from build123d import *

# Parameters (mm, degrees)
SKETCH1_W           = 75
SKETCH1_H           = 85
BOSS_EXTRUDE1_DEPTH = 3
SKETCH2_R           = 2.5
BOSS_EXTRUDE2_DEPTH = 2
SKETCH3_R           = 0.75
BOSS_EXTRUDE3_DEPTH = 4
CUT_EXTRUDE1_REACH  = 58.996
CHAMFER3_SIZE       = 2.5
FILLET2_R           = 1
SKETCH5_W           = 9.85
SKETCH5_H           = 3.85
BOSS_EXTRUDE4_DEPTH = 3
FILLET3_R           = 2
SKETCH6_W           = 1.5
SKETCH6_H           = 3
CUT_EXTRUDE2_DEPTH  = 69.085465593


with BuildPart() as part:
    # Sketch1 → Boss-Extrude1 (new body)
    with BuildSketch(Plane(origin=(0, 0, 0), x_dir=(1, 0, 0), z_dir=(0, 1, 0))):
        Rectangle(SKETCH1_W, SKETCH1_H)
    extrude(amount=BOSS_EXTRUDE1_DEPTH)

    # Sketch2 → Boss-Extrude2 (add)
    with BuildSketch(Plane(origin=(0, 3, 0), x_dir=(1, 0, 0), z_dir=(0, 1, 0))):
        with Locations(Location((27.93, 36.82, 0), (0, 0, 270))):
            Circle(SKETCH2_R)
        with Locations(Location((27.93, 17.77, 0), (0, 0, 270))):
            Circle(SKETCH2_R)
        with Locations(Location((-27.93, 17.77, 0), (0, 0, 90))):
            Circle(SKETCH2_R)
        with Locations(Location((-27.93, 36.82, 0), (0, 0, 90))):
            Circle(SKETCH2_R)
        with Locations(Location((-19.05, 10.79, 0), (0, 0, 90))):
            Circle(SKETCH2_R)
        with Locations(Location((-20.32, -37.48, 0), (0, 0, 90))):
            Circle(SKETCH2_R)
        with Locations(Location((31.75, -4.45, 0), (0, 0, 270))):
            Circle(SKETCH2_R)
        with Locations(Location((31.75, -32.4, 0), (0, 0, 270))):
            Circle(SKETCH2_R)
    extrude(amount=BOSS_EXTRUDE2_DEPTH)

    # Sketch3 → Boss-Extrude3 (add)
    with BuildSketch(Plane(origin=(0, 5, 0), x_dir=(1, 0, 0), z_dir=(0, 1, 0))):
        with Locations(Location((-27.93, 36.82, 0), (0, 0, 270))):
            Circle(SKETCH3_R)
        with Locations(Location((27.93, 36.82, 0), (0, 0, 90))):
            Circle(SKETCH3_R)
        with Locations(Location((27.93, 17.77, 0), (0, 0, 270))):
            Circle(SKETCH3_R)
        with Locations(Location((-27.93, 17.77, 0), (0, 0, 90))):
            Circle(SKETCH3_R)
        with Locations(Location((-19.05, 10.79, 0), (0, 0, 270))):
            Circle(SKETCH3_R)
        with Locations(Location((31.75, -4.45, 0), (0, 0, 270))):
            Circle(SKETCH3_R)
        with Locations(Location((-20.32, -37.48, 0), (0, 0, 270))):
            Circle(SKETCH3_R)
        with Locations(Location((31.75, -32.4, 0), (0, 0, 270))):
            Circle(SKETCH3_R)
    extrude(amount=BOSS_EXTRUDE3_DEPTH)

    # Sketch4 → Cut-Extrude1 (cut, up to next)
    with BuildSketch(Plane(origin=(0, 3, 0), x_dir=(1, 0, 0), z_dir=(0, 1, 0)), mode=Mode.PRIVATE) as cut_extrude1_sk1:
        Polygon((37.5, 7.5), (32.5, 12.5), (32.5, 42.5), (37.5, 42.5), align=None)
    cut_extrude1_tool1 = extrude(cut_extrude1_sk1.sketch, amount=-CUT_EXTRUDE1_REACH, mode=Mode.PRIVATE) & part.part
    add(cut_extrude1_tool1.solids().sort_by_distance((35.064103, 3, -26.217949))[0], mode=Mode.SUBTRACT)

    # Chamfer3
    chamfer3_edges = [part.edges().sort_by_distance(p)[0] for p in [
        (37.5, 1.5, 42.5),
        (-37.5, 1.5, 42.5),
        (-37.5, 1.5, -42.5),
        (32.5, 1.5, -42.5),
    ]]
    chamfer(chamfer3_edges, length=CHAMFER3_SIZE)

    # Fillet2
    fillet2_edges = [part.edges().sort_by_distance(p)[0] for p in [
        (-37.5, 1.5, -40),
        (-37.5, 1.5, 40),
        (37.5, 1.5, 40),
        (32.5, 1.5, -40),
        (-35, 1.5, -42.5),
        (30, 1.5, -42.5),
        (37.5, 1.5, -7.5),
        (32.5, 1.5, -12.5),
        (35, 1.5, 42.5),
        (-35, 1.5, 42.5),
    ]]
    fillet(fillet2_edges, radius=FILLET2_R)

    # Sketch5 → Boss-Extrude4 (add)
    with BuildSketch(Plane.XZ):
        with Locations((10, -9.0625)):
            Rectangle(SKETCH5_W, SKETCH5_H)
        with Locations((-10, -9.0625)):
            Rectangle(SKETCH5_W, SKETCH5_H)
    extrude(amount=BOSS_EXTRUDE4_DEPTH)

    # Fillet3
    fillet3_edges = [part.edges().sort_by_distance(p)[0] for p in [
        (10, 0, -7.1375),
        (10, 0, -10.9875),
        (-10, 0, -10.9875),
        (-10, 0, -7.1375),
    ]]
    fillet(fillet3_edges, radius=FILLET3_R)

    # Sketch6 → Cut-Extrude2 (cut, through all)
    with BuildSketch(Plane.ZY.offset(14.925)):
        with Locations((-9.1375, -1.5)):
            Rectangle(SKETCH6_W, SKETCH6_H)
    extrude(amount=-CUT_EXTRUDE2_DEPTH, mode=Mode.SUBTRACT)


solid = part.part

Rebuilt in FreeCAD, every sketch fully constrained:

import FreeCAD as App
import Part
import Sketcher
from FreeCAD import Vector
Q = App.Units.Quantity


def edges_at(feature, points):
    """Names of the edges that pass closest to the given points."""
    edges = feature.Shape.Edges
    near = lambda p: min(range(len(edges)), key=lambda i: edges[i].distToShape(Part.Vertex(*p))[0])
    return sorted({f"Edge{near(p) + 1}" for p in points})

doc = App.newDocument("Part")
body = doc.addObject("PartDesign::Body", "Body")

# Sketch on XZ plane
sketch1 = body.newObject("Sketcher::SketchObject", "Sketch")
sketch1.AttachmentSupport = (doc.getObject("XZ_Plane"), [""])
sketch1.MapMode = "FlatFace"
sketch1.addGeometry([
    Part.LineSegment(Vector(-38, -42, 0), Vector(-38, 42, 0)),
    Part.LineSegment(Vector(-38, 42, 0), Vector(38, 42, 0)),
    Part.LineSegment(Vector(38, 42, 0), Vector(38, -42, 0)),
    Part.LineSegment(Vector(38, -42, 0), Vector(-38, -42, 0)),
], False)
sketch1.addConstraint([
    Sketcher.Constraint("Coincident", 0, 2, 1, 1),
    Sketcher.Constraint("Coincident", 1, 2, 2, 1),
    Sketcher.Constraint("Coincident", 2, 2, 3, 1),
    Sketcher.Constraint("Coincident", 3, 2, 0, 1),
    Sketcher.Constraint("Vertical", 0),
    Sketcher.Constraint("Horizontal", 1),
    Sketcher.Constraint("Vertical", 2),
    Sketcher.Constraint("Horizontal", 3),
    Sketcher.Constraint("Symmetric", 0, 2, 2, 2, -1, 1),
    Sketcher.Constraint("DistanceX", 1, 1, 1, 2, Q("75 mm")),
    Sketcher.Constraint("DistanceY", 0, 1, 0, 2, Q("85 mm")),
])
pad1 = body.newObject("PartDesign::Pad", "Pad")
pad1.Profile = sketch1
pad1.Length = 3
pad1.Reversed = True

# Sketch on XZ plane
sketch2 = body.newObject("Sketcher::SketchObject", "Sketch001")
sketch2.AttachmentSupport = (doc.getObject("XZ_Plane"), [""])
sketch2.MapMode = "FlatFace"
sketch2.AttachmentOffset = App.Placement(Vector(0, 0, -3), App.Rotation())
sketch2.addGeometry([
    Part.Circle(Vector(27.9, -36.8, 0), Vector(0, 0, 1), 2.5),  # 0
    Part.Circle(Vector(27.9, -17.8, 0), Vector(0, 0, 1), 2.5),  # 1
    Part.Circle(Vector(-27.9, -17.8, 0), Vector(0, 0, 1), 2.5),  # 2
    Part.Circle(Vector(-27.9, -36.8, 0), Vector(0, 0, 1), 2.5),  # 3
    Part.Circle(Vector(-19.1, -10.8, 0), Vector(0, 0, 1), 2.5),  # 4
    Part.Circle(Vector(-20.3, 37.5, 0), Vector(0, 0, 1), 2.5),  # 5
    Part.Circle(Vector(31.8, 4.5, 0), Vector(0, 0, 1), 2.5),  # 6
    Part.Circle(Vector(31.8, 32.4, 0), Vector(0, 0, 1), 2.5),  # 7
], False)
sketch2.addConstraint([
    Sketcher.Constraint("Equal", 0, 1),
    Sketcher.Constraint("Equal", 1, 2),
    Sketcher.Constraint("Equal", 2, 3),
    Sketcher.Constraint("Equal", 3, 4),
    Sketcher.Constraint("Equal", 4, 5),
    Sketcher.Constraint("Equal", 5, 6),
    Sketcher.Constraint("Equal", 6, 7),
    Sketcher.Constraint("Symmetric", 1, 3, 2, 3, -2),
    Sketcher.Constraint("Symmetric", 0, 3, 3, 3, -2),
    Sketcher.Constraint("Vertical", 0, 3, 1, 3),
    Sketcher.Constraint("Vertical", 6, 3, 7, 3),
    Sketcher.Constraint("Diameter", 0, Q("5 mm")),
    Sketcher.Constraint("DistanceY", -1, 1, 7, 3, Q("32.4 mm")),
    Sketcher.Constraint("DistanceY", 3, 3, 5, 3, Q("74.3 mm")),
    Sketcher.Constraint("DistanceX", 4, 3, 6, 3, Q("50.8 mm")),
    Sketcher.Constraint("DistanceX", -1, 1, 0, 3, Q("27.93 mm")),
    Sketcher.Constraint("DistanceY", 0, 3, -1, 1, Q("36.82 mm")),
    Sketcher.Constraint("DistanceY", 1, 3, -1, 1, Q("17.77 mm")),
    Sketcher.Constraint("DistanceX", 4, 3, -1, 1, Q("19.05 mm")),
    Sketcher.Constraint("DistanceY", 4, 3, -1, 1, Q("10.79 mm")),
    Sketcher.Constraint("DistanceX", 5, 3, -1, 1, Q("20.32 mm")),
    Sketcher.Constraint("DistanceY", -1, 1, 6, 3, Q("4.45 mm")),
])
pad2 = body.newObject("PartDesign::Pad", "Pad001")
pad2.Profile = sketch2
pad2.Length = 2
pad2.Reversed = True

# Sketch on XZ plane
sketch3 = body.newObject("Sketcher::SketchObject", "Sketch002")
sketch3.AttachmentSupport = (doc.getObject("XZ_Plane"), [""])
sketch3.MapMode = "FlatFace"
sketch3.AttachmentOffset = App.Placement(Vector(0, 0, -5), App.Rotation())
sketch3.addGeometry([
    Part.Circle(Vector(-27.9, -36.8, 0), Vector(0, 0, 1), 0.8),  # 0
    Part.Circle(Vector(27.9, -36.8, 0), Vector(0, 0, 1), 0.8),  # 1
    Part.Circle(Vector(27.9, -17.8, 0), Vector(0, 0, 1), 0.8),  # 2
    Part.Circle(Vector(-27.9, -17.8, 0), Vector(0, 0, 1), 0.8),  # 3
    Part.Circle(Vector(-19.1, -10.8, 0), Vector(0, 0, 1), 0.8),  # 4
    Part.Circle(Vector(31.8, 4.5, 0), Vector(0, 0, 1), 0.8),  # 5
    Part.Circle(Vector(-20.3, 37.5, 0), Vector(0, 0, 1), 0.8),  # 6
    Part.Circle(Vector(31.8, 32.4, 0), Vector(0, 0, 1), 0.8),  # 7
], False)
sketch3.addConstraint([
    Sketcher.Constraint("Equal", 0, 1),
    Sketcher.Constraint("Equal", 1, 2),
    Sketcher.Constraint("Equal", 2, 3),
    Sketcher.Constraint("Equal", 3, 4),
    Sketcher.Constraint("Equal", 4, 5),
    Sketcher.Constraint("Equal", 5, 6),
    Sketcher.Constraint("Equal", 6, 7),
    Sketcher.Constraint("Symmetric", 0, 3, 1, 3, -2),
    Sketcher.Constraint("Symmetric", 2, 3, 3, 3, -2),
    Sketcher.Constraint("Vertical", 1, 3, 2, 3),
    Sketcher.Constraint("Vertical", 5, 3, 7, 3),
    Sketcher.Constraint("Diameter", 0, Q("1.5 mm")),
    Sketcher.Constraint("DistanceY", -1, 1, 7, 3, Q("32.4 mm")),
    Sketcher.Constraint("DistanceX", 4, 3, 5, 3, Q("50.8 mm")),
    Sketcher.Constraint("DistanceY", 0, 3, 6, 3, Q("74.3 mm")),
    Sketcher.Constraint("DistanceX", 0, 3, -1, 1, Q("27.93 mm")),
    Sketcher.Constraint("DistanceY", 0, 3, -1, 1, Q("36.82 mm")),
    Sketcher.Constraint("DistanceY", 2, 3, -1, 1, Q("17.77 mm")),
    Sketcher.Constraint("DistanceX", 4, 3, -1, 1, Q("19.05 mm")),
    Sketcher.Constraint("DistanceY", 4, 3, -1, 1, Q("10.79 mm")),
    Sketcher.Constraint("DistanceY", -1, 1, 5, 3, Q("4.45 mm")),
    Sketcher.Constraint("DistanceX", 6, 3, -1, 1, Q("20.32 mm")),
])
pad3 = body.newObject("PartDesign::Pad", "Pad002")
pad3.Profile = sketch3
pad3.Length = 4
pad3.Reversed = True

# Sketch on XZ plane
sketch4 = body.newObject("Sketcher::SketchObject", "Sketch003")
sketch4.AttachmentSupport = (doc.getObject("XZ_Plane"), [""])
sketch4.MapMode = "FlatFace"
sketch4.AttachmentOffset = App.Placement(Vector(0, 0, -3), App.Rotation())
sketch4.addGeometry([
    Part.LineSegment(Vector(32, -12, 0), Vector(38, -8, 0)),
    Part.LineSegment(Vector(38, -8, 0), Vector(38, -42, 0)),
    Part.LineSegment(Vector(38, -42, 0), Vector(32, -42, 0)),
    Part.LineSegment(Vector(32, -42, 0), Vector(32, -12, 0)),
], False)
sketch4.addConstraint([
    Sketcher.Constraint("Coincident", 0, 2, 1, 1),
    Sketcher.Constraint("Coincident", 1, 2, 2, 1),
    Sketcher.Constraint("Coincident", 2, 2, 3, 1),
    Sketcher.Constraint("Coincident", 3, 2, 0, 1),
    Sketcher.Constraint("Vertical", 1),
    Sketcher.Constraint("Horizontal", 2),
    Sketcher.Constraint("Vertical", 3),
    Sketcher.Constraint("DistanceX", 2, 2, 2, 1, Q("5 mm")),
    Sketcher.Constraint("DistanceY", 1, 2, 1, 1, Q("35 mm")),
    Sketcher.Constraint("DistanceY", 3, 1, 3, 2, Q("30 mm")),
    Sketcher.Constraint("DistanceX", -1, 1, 0, 2, Q("37.5 mm")),
    Sketcher.Constraint("DistanceY", 0, 2, -1, 1, Q("7.5 mm")),
])
pocket1 = body.newObject("PartDesign::Pocket", "Pocket")
pocket1.Profile = sketch4
pocket1.Type = "UpToFirst"
pocket1.Reversed = True
doc.recompute()

chamfer = body.newObject("PartDesign::Chamfer", "Chamfer")
chamfer.Base = (pocket1, edges_at(pocket1, [
    (37.5, 1.5, 42.5),
    (-37.5, 1.5, 42.5),
    (-37.5, 1.5, -42.5),
    (32.5, 1.5, -42.5),
]))
chamfer.Size = 2.5
doc.recompute()

fillet = body.newObject("PartDesign::Fillet", "Fillet")
fillet.Base = (chamfer, edges_at(chamfer, [
    (-37.5, 1.5, -40),
    (-37.5, 1.5, 40),
    (37.5, 1.5, 40),
    (32.5, 1.5, -40),
    (-35, 1.5, -42.5),
    (30, 1.5, -42.5),
    (37.5, 1.5, -7.5),
    (32.5, 1.5, -12.5),
    (35, 1.5, 42.5),
    (-35, 1.5, 42.5),
]))
fillet.Radius = 1

# Sketch on XZ plane
sketch5 = body.newObject("Sketcher::SketchObject", "Sketch004")
sketch5.AttachmentSupport = (doc.getObject("XZ_Plane"), [""])
sketch5.MapMode = "FlatFace"
sketch5.addGeometry([
    Part.LineSegment(Vector(5.1, -7.1, 0), Vector(5.1, -11, 0)),  # 0
    Part.LineSegment(Vector(5.1, -11, 0), Vector(14.9, -11, 0)),  # 1
    Part.LineSegment(Vector(14.9, -11, 0), Vector(14.9, -7.1, 0)),  # 2
    Part.LineSegment(Vector(14.9, -7.1, 0), Vector(5.1, -7.1, 0)),  # 3
    Part.LineSegment(Vector(-14.9, -7.1, 0), Vector(-14.9, -11, 0)),  # 4
    Part.LineSegment(Vector(-14.9, -11, 0), Vector(-5.1, -11, 0)),  # 5
    Part.LineSegment(Vector(-5.1, -11, 0), Vector(-5.1, -7.1, 0)),  # 6
    Part.LineSegment(Vector(-5.1, -7.1, 0), Vector(-14.9, -7.1, 0)),  # 7
], False)
sketch5.addConstraint([
    Sketcher.Constraint("Coincident", 0, 2, 1, 1),
    Sketcher.Constraint("Coincident", 1, 2, 2, 1),
    Sketcher.Constraint("Coincident", 2, 2, 3, 1),
    Sketcher.Constraint("Coincident", 3, 2, 0, 1),
    Sketcher.Constraint("Coincident", 4, 2, 5, 1),
    Sketcher.Constraint("Coincident", 5, 2, 6, 1),
    Sketcher.Constraint("Coincident", 6, 2, 7, 1),
    Sketcher.Constraint("Coincident", 7, 2, 4, 1),
    Sketcher.Constraint("Vertical", 0),
    Sketcher.Constraint("Horizontal", 1),
    Sketcher.Constraint("Vertical", 2),
    Sketcher.Constraint("Horizontal", 3),
    Sketcher.Constraint("Vertical", 4),
    Sketcher.Constraint("Horizontal", 5),
    Sketcher.Constraint("Vertical", 6),
    Sketcher.Constraint("Horizontal", 7),
    Sketcher.Constraint("Symmetric", 1, 2, 4, 2, -2),
    Sketcher.Constraint("Symmetric", 3, 2, 6, 2, -2),
    Sketcher.Constraint("DistanceX", 4, 2, 0, 2, Q("20 mm")),
    Sketcher.Constraint("DistanceX", 1, 1, 1, 2, Q("9.85 mm")),
    Sketcher.Constraint("DistanceY", 0, 2, 0, 1, Q("3.85 mm")),
    Sketcher.Constraint("DistanceY", 0, 2, -1, 1, Q("10.9875 mm")),
])
pad4 = body.newObject("PartDesign::Pad", "Pad003")
pad4.Profile = sketch5
pad4.Length = 3
doc.recompute()

fillet2 = body.newObject("PartDesign::Fillet", "Fillet001")
fillet2.Base = (pad4, edges_at(pad4, [
    (10, 0, -7.138),
    (10, 0, -10.988),
    (-10, 0, -10.988),
    (-10, 0, -7.138),
]))
fillet2.Radius = 2

# Sketch on YZ plane
sketch6 = body.newObject("Sketcher::SketchObject", "Sketch005")
sketch6.AttachmentSupport = (doc.getObject("YZ_Plane"), [""])
sketch6.MapMode = "FlatFace"
sketch6.AttachmentOffset = App.Placement(Vector(0, 0, -14.925), App.Rotation())
sketch6.addGeometry([
    Part.LineSegment(Vector(0, -9.9, 0), Vector(-3, -9.9, 0)),
    Part.LineSegment(Vector(-3, -9.9, 0), Vector(-3, -8.4, 0)),
    Part.LineSegment(Vector(-3, -8.4, 0), Vector(0, -8.4, 0)),
    Part.LineSegment(Vector(0, -8.4, 0), Vector(0, -9.9, 0)),
], False)
sketch6.addConstraint([
    Sketcher.Constraint("Coincident", 0, 2, 1, 1),
    Sketcher.Constraint("Coincident", 1, 2, 2, 1),
    Sketcher.Constraint("Coincident", 2, 2, 3, 1),
    Sketcher.Constraint("Coincident", 3, 2, 0, 1),
    Sketcher.Constraint("Horizontal", 0),
    Sketcher.Constraint("Vertical", 1),
    Sketcher.Constraint("Horizontal", 2),
    Sketcher.Constraint("Vertical", 3),
    Sketcher.Constraint("PointOnObject", 2, 2, -2),
    Sketcher.Constraint("DistanceX", 0, 2, 0, 1, Q("3 mm")),
    Sketcher.Constraint("DistanceY", 1, 1, 1, 2, Q("1.5 mm")),
    Sketcher.Constraint("DistanceY", 0, 2, -1, 1, Q("9.8875 mm")),
])
pocket2 = body.newObject("PartDesign::Pocket", "Pocket001")
pocket2.Profile = sketch6
pocket2.Type = "ThroughAll"
pocket2.Reversed = True

doc.recompute()
